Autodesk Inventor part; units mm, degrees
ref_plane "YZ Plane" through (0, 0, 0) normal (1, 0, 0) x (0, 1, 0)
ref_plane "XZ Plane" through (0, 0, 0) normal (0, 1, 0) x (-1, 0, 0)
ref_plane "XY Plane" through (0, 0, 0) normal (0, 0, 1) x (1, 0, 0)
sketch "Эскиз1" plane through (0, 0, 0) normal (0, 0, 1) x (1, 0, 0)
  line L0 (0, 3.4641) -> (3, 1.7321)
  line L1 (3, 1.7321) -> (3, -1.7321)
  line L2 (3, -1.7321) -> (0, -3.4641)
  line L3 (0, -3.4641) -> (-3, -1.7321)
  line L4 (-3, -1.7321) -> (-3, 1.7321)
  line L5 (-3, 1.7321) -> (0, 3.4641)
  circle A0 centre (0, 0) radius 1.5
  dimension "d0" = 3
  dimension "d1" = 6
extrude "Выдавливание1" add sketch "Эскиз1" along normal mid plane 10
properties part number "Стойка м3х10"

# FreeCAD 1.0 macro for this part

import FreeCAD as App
import Part
import Sketcher
Q = App.Units.Quantity

doc = App.newDocument("Part")
body = doc.addObject("PartDesign::Body", "Body")

sketch1 = body.newObject("Sketcher::SketchObject", "Sketch")
sketch1.AttachmentSupport = (doc.getObject("XY_Plane"), [""])
sketch1.MapMode = "FlatFace"
sketch1.addGeometry(Part.LineSegment(App.Vector(3, 1.7, 0), App.Vector(0, 3.5, 0)), False)
sketch1.addGeometry(Part.LineSegment(App.Vector(0, 3.5, 0), App.Vector(-3, 1.7, 0)), False)
sketch1.addGeometry(Part.LineSegment(App.Vector(-3, 1.7, 0), App.Vector(-3, -1.7, 0)), False)
sketch1.addGeometry(Part.LineSegment(App.Vector(-3, -1.7, 0), App.Vector(0, -3.5, 0)), False)
sketch1.addGeometry(Part.LineSegment(App.Vector(0, -3.5, 0), App.Vector(3, -1.7, 0)), False)
sketch1.addGeometry(Part.LineSegment(App.Vector(3, -1.7, 0), App.Vector(3, 1.7, 0)), False)
sketch1.addGeometry(Part.Circle(App.Vector(0, 0, 0), App.Vector(0, 0, 1), 1.5), False)
sketch1.addConstraint(Sketcher.Constraint("Coincident", 0, 2, 1, 1))
sketch1.addConstraint(Sketcher.Constraint("Coincident", 1, 2, 2, 1))
sketch1.addConstraint(Sketcher.Constraint("Coincident", 2, 2, 3, 1))
sketch1.addConstraint(Sketcher.Constraint("Coincident", 3, 2, 4, 1))
sketch1.addConstraint(Sketcher.Constraint("Coincident", 4, 2, 5, 1))
sketch1.addConstraint(Sketcher.Constraint("Coincident", 5, 2, 0, 1))
sketch1.addConstraint(Sketcher.Constraint("Vertical", 2))
sketch1.addConstraint(Sketcher.Constraint("Vertical", 5))
sketch1.addConstraint(Sketcher.Constraint("Coincident", 6, 3, -1, 1))
sketch1.addConstraint(Sketcher.Constraint("Symmetric", 0, 2, 3, 2, -1, 1))
sketch1.addConstraint(Sketcher.Constraint("Symmetric", 1, 2, 4, 2, -1, 1))
sketch1.addConstraint(Sketcher.Constraint("PointOnObject", 0, 2, -2))
sketch1.addConstraint(Sketcher.Constraint("Parallel", 0, 3))
sketch1.addConstraint(Sketcher.Constraint("Horizontal", 2, 2, 4, 2))
sketch1.addConstraint(Sketcher.Constraint("Diameter", 6, Q("3 mm")))
sketch1.addConstraint(Sketcher.Constraint("DistanceX", 1, 2, -1, 1, Q("3 mm")))
sketch1.addConstraint(Sketcher.Constraint("Angle", 0, Q("150.0007 deg")))
sketch1.addConstraint(Sketcher.Constraint("DistanceY", 2, 2, 2, 1, Q("3.4642 mm")))
pad1 = body.newObject("PartDesign::Pad", "Pad")
pad1.Profile = sketch1
pad1.Length = 10
pad1.Midplane = True

doc.recompute()
